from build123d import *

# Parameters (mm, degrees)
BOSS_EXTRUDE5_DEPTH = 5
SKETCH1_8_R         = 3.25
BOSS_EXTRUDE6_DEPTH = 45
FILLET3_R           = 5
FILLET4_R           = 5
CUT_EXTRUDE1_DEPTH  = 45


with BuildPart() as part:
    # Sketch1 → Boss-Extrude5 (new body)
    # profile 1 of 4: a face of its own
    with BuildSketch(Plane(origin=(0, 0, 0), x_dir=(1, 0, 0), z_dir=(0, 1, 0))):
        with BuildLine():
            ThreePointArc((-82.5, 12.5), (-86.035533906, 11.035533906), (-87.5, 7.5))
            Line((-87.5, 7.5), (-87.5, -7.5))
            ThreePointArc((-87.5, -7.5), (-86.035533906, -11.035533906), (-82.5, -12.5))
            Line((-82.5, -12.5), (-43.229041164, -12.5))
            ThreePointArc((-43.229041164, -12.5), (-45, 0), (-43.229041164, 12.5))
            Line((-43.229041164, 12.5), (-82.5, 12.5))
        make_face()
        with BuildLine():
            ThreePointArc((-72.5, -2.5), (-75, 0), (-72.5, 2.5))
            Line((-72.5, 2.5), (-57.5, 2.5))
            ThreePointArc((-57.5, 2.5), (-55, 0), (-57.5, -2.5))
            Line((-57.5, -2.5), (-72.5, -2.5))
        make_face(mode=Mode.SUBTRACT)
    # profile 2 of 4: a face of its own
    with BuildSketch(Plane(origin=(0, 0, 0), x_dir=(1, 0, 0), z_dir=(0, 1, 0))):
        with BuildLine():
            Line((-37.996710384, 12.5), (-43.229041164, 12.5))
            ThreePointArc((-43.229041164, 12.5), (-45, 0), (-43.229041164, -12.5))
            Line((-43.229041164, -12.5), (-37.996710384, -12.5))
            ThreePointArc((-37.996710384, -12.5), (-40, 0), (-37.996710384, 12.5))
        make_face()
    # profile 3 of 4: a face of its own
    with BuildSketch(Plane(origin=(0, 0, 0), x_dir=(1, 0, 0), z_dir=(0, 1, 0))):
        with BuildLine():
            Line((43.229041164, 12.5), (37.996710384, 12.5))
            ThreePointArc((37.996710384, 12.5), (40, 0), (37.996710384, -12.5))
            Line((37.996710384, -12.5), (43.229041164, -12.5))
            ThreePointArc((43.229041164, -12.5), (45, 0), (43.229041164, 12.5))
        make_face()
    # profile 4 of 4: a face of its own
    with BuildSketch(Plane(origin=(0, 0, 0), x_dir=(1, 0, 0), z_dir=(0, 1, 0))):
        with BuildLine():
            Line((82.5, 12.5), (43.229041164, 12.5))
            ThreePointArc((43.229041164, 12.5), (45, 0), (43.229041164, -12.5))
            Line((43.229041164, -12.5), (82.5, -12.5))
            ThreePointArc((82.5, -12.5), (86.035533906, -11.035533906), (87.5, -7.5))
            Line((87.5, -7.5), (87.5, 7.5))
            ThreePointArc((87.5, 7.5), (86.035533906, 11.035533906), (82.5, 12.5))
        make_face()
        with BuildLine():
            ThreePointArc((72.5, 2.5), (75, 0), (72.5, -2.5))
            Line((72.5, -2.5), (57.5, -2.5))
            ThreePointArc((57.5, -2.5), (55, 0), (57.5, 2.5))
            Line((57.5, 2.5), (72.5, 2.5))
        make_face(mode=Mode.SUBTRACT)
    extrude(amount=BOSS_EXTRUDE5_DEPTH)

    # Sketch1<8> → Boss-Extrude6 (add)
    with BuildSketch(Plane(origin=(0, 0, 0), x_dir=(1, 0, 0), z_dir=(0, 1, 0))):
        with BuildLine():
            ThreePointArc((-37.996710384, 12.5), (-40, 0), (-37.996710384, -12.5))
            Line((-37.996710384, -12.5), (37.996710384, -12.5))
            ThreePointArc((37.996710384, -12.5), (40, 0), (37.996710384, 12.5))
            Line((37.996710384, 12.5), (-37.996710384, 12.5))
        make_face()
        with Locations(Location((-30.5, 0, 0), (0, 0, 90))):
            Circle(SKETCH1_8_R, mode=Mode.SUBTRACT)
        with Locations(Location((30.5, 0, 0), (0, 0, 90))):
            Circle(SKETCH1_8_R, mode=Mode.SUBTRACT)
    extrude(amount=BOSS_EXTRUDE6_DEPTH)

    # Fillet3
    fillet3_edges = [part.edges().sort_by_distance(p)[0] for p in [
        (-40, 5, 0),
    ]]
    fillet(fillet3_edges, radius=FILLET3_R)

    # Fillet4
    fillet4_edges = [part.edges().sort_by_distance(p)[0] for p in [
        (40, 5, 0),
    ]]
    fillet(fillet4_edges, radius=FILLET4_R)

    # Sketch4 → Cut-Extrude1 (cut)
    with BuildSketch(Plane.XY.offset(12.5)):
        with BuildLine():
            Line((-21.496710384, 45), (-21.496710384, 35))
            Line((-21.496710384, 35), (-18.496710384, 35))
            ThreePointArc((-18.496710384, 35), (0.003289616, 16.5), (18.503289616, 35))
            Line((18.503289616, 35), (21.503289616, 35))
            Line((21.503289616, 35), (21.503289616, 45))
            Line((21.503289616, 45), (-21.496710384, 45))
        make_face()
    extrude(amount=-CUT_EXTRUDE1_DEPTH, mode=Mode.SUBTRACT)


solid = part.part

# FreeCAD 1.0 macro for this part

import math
import FreeCAD as App
import Part
import Sketcher

V = App.Vector


def edges_at(feature, points):
    """Names of the edges that pass closest to the given points."""
    edges = feature.Shape.Edges
    near = lambda p: min(range(len(edges)), key=lambda i: edges[i].distToShape(Part.Vertex(*p))[0])
    return sorted({f"Edge{near(p) + 1}" for p in points})

doc = App.newDocument("Part")
params = doc.addObject("Spreadsheet::Sheet", "Params")
for row, (alias, value) in enumerate([
    ("sketch1_radius", "5 mm"),
    ("sketch1_radius2", "40 mm"),
    ("sketch1_radius3", "2.5 mm"),
    ("sketch1_width", "15 mm"),
    ("pad1_length", "5 mm"),
    ("sketch2_radius", "40 mm"),
    ("sketch2_diameter", "6.5 mm"),
    ("pad2_length", "45 mm"),
    ("fillet_radius", "5 mm"),
    ("fillet2_radius", "5 mm"),
    ("sketch3_radius", "18.5 mm"),
    ("sketch3_width", "3 mm"),
    ("sketch3_height", "10 mm"),
    ("pocket1_length", "45 mm"),
], start=1):
    params.set(f"A{row}", alias)
    params.set(f"B{row}", "=" + value)
    params.setAlias(f"B{row}", alias)

body = doc.addObject("PartDesign::Body", "Body")
body.AllowCompound = True

# Sketch on XZ plane
sketch1 = body.newObject("Sketcher::SketchObject", "Sketch")
sketch1.AttachmentSupport = (doc.getObject("XZ_Plane"), [""])
sketch1.MapMode = "FlatFace"
sketch1.addGeometry(Part.ArcOfCircle(Part.Circle(V(-82.5, -7.5, 0), V(0, 0, 1), 5), math.radians(180), math.radians(270)), False)
sketch1.addGeometry(Part.LineSegment(V(-87.5, -7.5, 0), V(-87.5, 7.5, 0)), False)
sketch1.addGeometry(Part.ArcOfCircle(Part.Circle(V(-82.5, 7.5, 0), V(0, 0, 1), 5), math.radians(90), math.radians(180)), False)
sketch1.addGeometry(Part.LineSegment(V(-82.5, 12.5, 0), V(-38, 12.5, 0)), False)
sketch1.addGeometry(Part.ArcOfCircle(Part.Circle(V(0, 0, 0), V(0, 0, 1), 40), math.radians(162), math.radians(198)), False)
sketch1.addGeometry(Part.LineSegment(V(-38, -12.5, 0), V(-82.5, -12.5, 0)), False)
sketch1.addGeometry(Part.LineSegment(V(-57.5, 2.5, 0), V(-72.5, 2.5, 0)), False)
sketch1.addGeometry(Part.ArcOfCircle(Part.Circle(V(-72.5, 0, 0), V(0, 0, 1), 2.5), math.radians(90), math.radians(270)), False)
sketch1.addGeometry(Part.LineSegment(V(-72.5, -2.5, 0), V(-57.5, -2.5, 0)), False)
sketch1.addGeometry(Part.ArcOfCircle(Part.Circle(V(-57.5, 0, 0), V(0, 0, 1), 2.5), math.radians(-90), math.radians(90)), False)
sketch1.addGeometry(Part.ArcOfCircle(Part.Circle(V(0, 0, 0), V(0, 0, 1), 40), math.radians(-18), math.radians(18)), False)
sketch1.addGeometry(Part.LineSegment(V(38, 12.5, 0), V(82.5, 12.5, 0)), False)
sketch1.addGeometry(Part.ArcOfCircle(Part.Circle(V(82.5, 7.5, 0), V(0, 0, 1), 5), math.radians(0), math.radians(90)), False)
sketch1.addGeometry(Part.LineSegment(V(87.5, 7.5, 0), V(87.5, -7.5, 0)), False)
sketch1.addGeometry(Part.ArcOfCircle(Part.Circle(V(82.5, -7.5, 0), V(0, 0, 1), 5), math.radians(-90), math.radians(0)), False)
sketch1.addGeometry(Part.LineSegment(V(82.5, -12.5, 0), V(38, -12.5, 0)), False)
sketch1.addGeometry(Part.ArcOfCircle(Part.Circle(V(72.5, 0, 0), V(0, 0, 1), 2.5), math.radians(-90), math.radians(90)), False)
sketch1.addGeometry(Part.LineSegment(V(72.5, 2.5, 0), V(57.5, 2.5, 0)), False)
sketch1.addGeometry(Part.ArcOfCircle(Part.Circle(V(57.5, 0, 0), V(0, 0, 1), 2.5), math.radians(90), math.radians(270)), False)
sketch1.addGeometry(Part.LineSegment(V(57.5, -2.5, 0), V(72.5, -2.5, 0)), False)
sketch1.addConstraint(Sketcher.Constraint("Tangent", 0, 1, 1, 1))
sketch1.addConstraint(Sketcher.Constraint("Tangent", 1, 2, 2, 2))
sketch1.addConstraint(Sketcher.Constraint("Tangent", 2, 1, 3, 1))
sketch1.addConstraint(Sketcher.Constraint("Coincident", 3, 2, 4, 1))
sketch1.addConstraint(Sketcher.Constraint("Coincident", 4, 2, 5, 1))
sketch1.addConstraint(Sketcher.Constraint("Tangent", 5, 2, 0, 2))
sketch1.addConstraint(Sketcher.Constraint("Tangent", 6, 2, 7, 1))
sketch1.addConstraint(Sketcher.Constraint("Tangent", 7, 2, 8, 1))
sketch1.addConstraint(Sketcher.Constraint("Tangent", 8, 2, 9, 1))
sketch1.addConstraint(Sketcher.Constraint("Tangent", 9, 2, 6, 1))
sketch1.addConstraint(Sketcher.Constraint("Coincident", 10, 2, 11, 1))
sketch1.addConstraint(Sketcher.Constraint("Tangent", 11, 2, 12, 2))
sketch1.addConstraint(Sketcher.Constraint("Tangent", 12, 1, 13, 1))
sketch1.addConstraint(Sketcher.Constraint("Tangent", 13, 2, 14, 2))
sketch1.addConstraint(Sketcher.Constraint("Tangent", 14, 1, 15, 1))
sketch1.addConstraint(Sketcher.Constraint("Coincident", 15, 2, 10, 1))
sketch1.addConstraint(Sketcher.Constraint("Tangent", 16, 2, 17, 1))
sketch1.addConstraint(Sketcher.Constraint("Tangent", 17, 2, 18, 1))
sketch1.addConstraint(Sketcher.Constraint("Tangent", 18, 2, 19, 1))
sketch1.addConstraint(Sketcher.Constraint("Tangent", 19, 2, 16, 1))
sketch1.addConstraint(Sketcher.Constraint("Vertical", 1))
sketch1.addConstraint(Sketcher.Constraint("Horizontal", 3))
sketch1.addConstraint(Sketcher.Constraint("Horizontal", 5))
sketch1.addConstraint(Sketcher.Constraint("Horizontal", 6))
sketch1.addConstraint(Sketcher.Constraint("Horizontal", 8))
sketch1.addConstraint(Sketcher.Constraint("Horizontal", 11))
sketch1.addConstraint(Sketcher.Constraint("Vertical", 13))
sketch1.addConstraint(Sketcher.Constraint("Horizontal", 15))
sketch1.addConstraint(Sketcher.Constraint("Horizontal", 17))
sketch1.addConstraint(Sketcher.Constraint("Horizontal", 19))
sketch1.addConstraint(Sketcher.Constraint("Coincident", 4, 3, -1, 1))
sketch1.addConstraint(Sketcher.Constraint("Coincident", 10, 3, -1, 1))
sketch1.addConstraint(Sketcher.Constraint("Equal", 0, 2))
sketch1.addConstraint(Sketcher.Constraint("Equal", 4, 10))
sketch1.addConstraint(Sketcher.Constraint("Equal", 2, 12))
sketch1.addConstraint(Sketcher.Constraint("Equal", 12, 14))
sketch1.addConstraint(Sketcher.Constraint("Equal", 9, 16))
sketch1.addConstraint(Sketcher.Constraint("Symmetric", 0, 3, 12, 3, -1, 1))
sketch1.addConstraint(Sketcher.Constraint("Symmetric", 7, 3, 16, 3, -1, 1))
sketch1.addConstraint(Sketcher.Constraint("Symmetric", 9, 3, 18, 3, -2))
sketch1.addConstraint(Sketcher.Constraint("Horizontal", 2, 3, 12, 3))
sketch1.addConstraint(Sketcher.Constraint("Horizontal", 0, 3, 14, 3))
sketch1.addConstraint(Sketcher.Constraint("Equal", 19, 1))
sketch1.addConstraint(Sketcher.Constraint("Radius", 0, 5.0))
sketch1.addConstraint(Sketcher.Constraint("Radius", 4, 40.0))
sketch1.addConstraint(Sketcher.Constraint("Radius", 7, 2.5))
sketch1.addConstraint(Sketcher.Constraint("DistanceX", 6, 2, 6, 1, 15.0))
sketch1.addConstraint(Sketcher.Constraint("DistanceX", 0, 3, 7, 3, 10.0))
sketch1.addConstraint(Sketcher.Constraint("DistanceX", 9, 3, 12, 3, 140.0))
sketch1.setExpression("Constraints[43]", "Params.sketch1_radius")
sketch1.setExpression("Constraints[44]", "Params.sketch1_radius2")
sketch1.setExpression("Constraints[45]", "Params.sketch1_radius3")
sketch1.setExpression("Constraints[46]", "Params.sketch1_width")
pad1 = body.newObject("PartDesign::Pad", "Pad")
pad1.Profile = sketch1
pad1.setExpression("Length", "Params.pad1_length")
pad1.Reversed = True

# Sketch on XZ plane
sketch2 = body.newObject("Sketcher::SketchObject", "Sketch001")
sketch2.AttachmentSupport = (doc.getObject("XZ_Plane"), [""])
sketch2.MapMode = "FlatFace"
sketch2.addGeometry(Part.ArcOfCircle(Part.Circle(V(0, 0, 0), V(0, 0, 1), 40), math.radians(162), math.radians(198)), False)
sketch2.addGeometry(Part.LineSegment(V(-38, 12.5, 0), V(38, 12.5, 0)), False)
sketch2.addGeometry(Part.ArcOfCircle(Part.Circle(V(0, 0, 0), V(0, 0, 1), 40), math.radians(-18), math.radians(18)), False)
sketch2.addGeometry(Part.LineSegment(V(38, -12.5, 0), V(-38, -12.5, 0)), False)
sketch2.addGeometry(Part.Circle(V(-30.5, 0, 0), V(0, 0, 1), 3.2), False)
sketch2.addGeometry(Part.Circle(V(30.5, 0, 0), V(0, 0, 1), 3.2), False)
sketch2.addConstraint(Sketcher.Constraint("Coincident", 0, 1, 1, 1))
sketch2.addConstraint(Sketcher.Constraint("Coincident", 1, 2, 2, 2))
sketch2.addConstraint(Sketcher.Constraint("Coincident", 2, 1, 3, 1))
sketch2.addConstraint(Sketcher.Constraint("Coincident", 3, 2, 0, 2))
sketch2.addConstraint(Sketcher.Constraint("Horizontal", 1))
sketch2.addConstraint(Sketcher.Constraint("Horizontal", 3))
sketch2.addConstraint(Sketcher.Constraint("Coincident", 0, 3, -1, 1))
sketch2.addConstraint(Sketcher.Constraint("Coincident", 2, 3, -1, 1))
sketch2.addConstraint(Sketcher.Constraint("Equal", 0, 2))
sketch2.addConstraint(Sketcher.Constraint("Equal", 4, 5))
sketch2.addConstraint(Sketcher.Constraint("Symmetric", 4, 3, 5, 3, -1, 1))
sketch2.addConstraint(Sketcher.Constraint("PointOnObject", 4, 3, -1))
sketch2.addConstraint(Sketcher.Constraint("Vertical", 1, 2, 2, 1))
sketch2.addConstraint(Sketcher.Constraint("Radius", 0, 40.0))
sketch2.addConstraint(Sketcher.Constraint("Diameter", 4, 6.5))
sketch2.addConstraint(Sketcher.Constraint("DistanceX", 4, 3, 5, 3, 61.0))
sketch2.addConstraint(Sketcher.Constraint("DistanceY", 2, 1, 1, 2, 25.0))
sketch2.setExpression("Constraints[13]", "Params.sketch2_radius")
sketch2.setExpression("Constraints[14]", "Params.sketch2_diameter")
pad2 = body.newObject("PartDesign::Pad", "Pad001")
pad2.Profile = sketch2
pad2.setExpression("Length", "Params.pad2_length")
pad2.Reversed = True
doc.recompute()

fillet = body.newObject("PartDesign::Fillet", "Fillet")
fillet.Base = (pad2, edges_at(pad2, [(-40, 5, 0)]))
fillet.setExpression("Radius", "Params.fillet_radius")
doc.recompute()

fillet2 = body.newObject("PartDesign::Fillet", "Fillet001")
fillet2.Base = (fillet, edges_at(fillet, [(40, 5, 0)]))
fillet2.setExpression("Radius", "Params.fillet2_radius")

# Sketch on XY plane
sketch3 = body.newObject("Sketcher::SketchObject", "Sketch002")
sketch3.AttachmentSupport = (doc.getObject("XY_Plane"), [""])
sketch3.MapMode = "FlatFace"
sketch3.AttachmentOffset = App.Placement(V(0, 0, 12.5), App.Rotation())
sketch3.addGeometry(Part.LineSegment(V(-21.5, 45, 0), V(-21.5, 35, 0)), False)
sketch3.addGeometry(Part.LineSegment(V(-21.5, 35, 0), V(-18.5, 35, 0)), False)
sketch3.addGeometry(Part.ArcOfCircle(Part.Circle(V(0, 35, 0), V(0, 0, 1), 18.5), math.radians(180), math.radians(360)), False)
sketch3.addGeometry(Part.LineSegment(V(18.5, 35, 0), V(21.5, 35, 0)), False)
sketch3.addGeometry(Part.LineSegment(V(21.5, 35, 0), V(21.5, 45, 0)), False)
sketch3.addGeometry(Part.LineSegment(V(21.5, 45, 0), V(-21.5, 45, 0)), False)
sketch3.addConstraint(Sketcher.Constraint("Coincident", 0, 2, 1, 1))
sketch3.addConstraint(Sketcher.Constraint("Coincident", 1, 2, 2, 1))
sketch3.addConstraint(Sketcher.Constraint("Coincident", 2, 2, 3, 1))
sketch3.addConstraint(Sketcher.Constraint("Coincident", 3, 2, 4, 1))
sketch3.addConstraint(Sketcher.Constraint("Coincident", 4, 2, 5, 1))
sketch3.addConstraint(Sketcher.Constraint("Coincident", 5, 2, 0, 1))
sketch3.addConstraint(Sketcher.Constraint("Vertical", 0))
sketch3.addConstraint(Sketcher.Constraint("Horizontal", 1))
sketch3.addConstraint(Sketcher.Constraint("Horizontal", 3))
sketch3.addConstraint(Sketcher.Constraint("Vertical", 4))
sketch3.addConstraint(Sketcher.Constraint("Horizontal", 5))
sketch3.addConstraint(Sketcher.Constraint("Horizontal", 2, 3, 0, 2))
sketch3.addConstraint(Sketcher.Constraint("Horizontal", 1, 2, 2, 2))
sketch3.addConstraint(Sketcher.Constraint("Equal", 1, 3))
sketch3.addConstraint(Sketcher.Constraint("Radius", 2, 18.5))
sketch3.addConstraint(Sketcher.Constraint("DistanceX", 1, 1, 1, 2, 3.0))
sketch3.addConstraint(Sketcher.Constraint("DistanceY", 0, 2, 0, 1, 10.0))
sketch3.addConstraint(Sketcher.Constraint("DistanceY", -1, 1, 2, 3, 35.0))
sketch3.addConstraint(Sketcher.Constraint("DistanceX", -1, 1, 2, 3, 0.00329))
sketch3.setExpression("Constraints[14]", "Params.sketch3_radius")
sketch3.setExpression("Constraints[15]", "Params.sketch3_width")
sketch3.setExpression("Constraints[16]", "Params.sketch3_height")
pocket1 = body.newObject("PartDesign::Pocket", "Pocket")
pocket1.Profile = sketch3
pocket1.setExpression("Length", "Params.pocket1_length")

doc.recompute()
